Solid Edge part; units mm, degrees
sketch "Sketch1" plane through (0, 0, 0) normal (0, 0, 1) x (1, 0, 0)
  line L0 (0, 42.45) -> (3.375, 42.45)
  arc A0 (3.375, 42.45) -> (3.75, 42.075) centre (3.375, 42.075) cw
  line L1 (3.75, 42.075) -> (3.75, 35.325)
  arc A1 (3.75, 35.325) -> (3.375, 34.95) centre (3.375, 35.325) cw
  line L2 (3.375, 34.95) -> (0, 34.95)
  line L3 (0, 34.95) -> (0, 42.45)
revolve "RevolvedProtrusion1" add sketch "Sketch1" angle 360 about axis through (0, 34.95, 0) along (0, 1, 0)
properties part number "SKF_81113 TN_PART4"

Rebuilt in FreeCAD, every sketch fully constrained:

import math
import FreeCAD as App
import Part
import Sketcher
from FreeCAD import Vector

doc = App.newDocument("Part")
body = doc.addObject("PartDesign::Body", "Body")

# Sketch on XY plane
sketch1 = doc.addObject("Sketcher::SketchObject", "Sketch")
body.addObject(sketch1)
sketch1.AttachmentSupport = (doc.XY_Plane, [""])
sketch1.MapMode = "FlatFace"
sketch1.addGeometry(Part.LineSegment(Vector(3.375, 42.45, 0), Vector(0, 42.45, 0)), False)
sketch1.addGeometry(Part.LineSegment(Vector(0, 42.45, 0), Vector(0, 34.95, 0)), False)
sketch1.addGeometry(Part.LineSegment(Vector(0, 34.95, 0), Vector(3.375, 34.95, 0)), False)
sketch1.addGeometry(Part.ArcOfCircle(Part.Circle(Vector(3.375, 35.325, 0), Vector(0, 0, 1), 0.375), math.radians(-90), math.radians(0)), False)
sketch1.addGeometry(Part.LineSegment(Vector(3.75, 35.325, 0), Vector(3.75, 42.075, 0)), False)
sketch1.addGeometry(Part.ArcOfCircle(Part.Circle(Vector(3.375, 42.075, 0), Vector(0, 0, 1), 0.375), math.radians(0), math.radians(90)), False)
sketch1.addConstraint(Sketcher.Constraint("Coincident", 0, 2, 1, 1))
sketch1.addConstraint(Sketcher.Constraint("Coincident", 1, 2, 2, 1))
sketch1.addConstraint(Sketcher.Constraint("Tangent", 2, 2, 3, 1))
sketch1.addConstraint(Sketcher.Constraint("Tangent", 3, 2, 4, 1))
sketch1.addConstraint(Sketcher.Constraint("Tangent", 4, 2, 5, 1))
sketch1.addConstraint(Sketcher.Constraint("Tangent", 5, 2, 0, 1))
sketch1.addConstraint(Sketcher.Constraint("Horizontal", 0))
sketch1.addConstraint(Sketcher.Constraint("Vertical", 1))
sketch1.addConstraint(Sketcher.Constraint("Horizontal", 2))
sketch1.addConstraint(Sketcher.Constraint("Vertical", 4))
sketch1.addConstraint(Sketcher.Constraint("Equal", 3, 5))
sketch1.addConstraint(Sketcher.Constraint("PointOnObject", 0, 2, -2))
sketch1.addConstraint(Sketcher.Constraint("DistanceY", 1, 2, 1, 1, 7.5))
sketch1.addConstraint(Sketcher.Constraint("Radius", 3, 0.375))
sketch1.addConstraint(Sketcher.Constraint("DistanceX", 0, 2, 0, 1, 3.375))
sketch1.addConstraint(Sketcher.Constraint("DistanceY", -1, 1, 0, 2, 42.45))
revolution = doc.addObject("PartDesign::Revolution", "Revolution")
body.addObject(revolution)
revolution.Profile = sketch1
revolution.ReferenceAxis = (sketch1, ["V_Axis"])
revolution.Angle = 360

doc.recompute()
